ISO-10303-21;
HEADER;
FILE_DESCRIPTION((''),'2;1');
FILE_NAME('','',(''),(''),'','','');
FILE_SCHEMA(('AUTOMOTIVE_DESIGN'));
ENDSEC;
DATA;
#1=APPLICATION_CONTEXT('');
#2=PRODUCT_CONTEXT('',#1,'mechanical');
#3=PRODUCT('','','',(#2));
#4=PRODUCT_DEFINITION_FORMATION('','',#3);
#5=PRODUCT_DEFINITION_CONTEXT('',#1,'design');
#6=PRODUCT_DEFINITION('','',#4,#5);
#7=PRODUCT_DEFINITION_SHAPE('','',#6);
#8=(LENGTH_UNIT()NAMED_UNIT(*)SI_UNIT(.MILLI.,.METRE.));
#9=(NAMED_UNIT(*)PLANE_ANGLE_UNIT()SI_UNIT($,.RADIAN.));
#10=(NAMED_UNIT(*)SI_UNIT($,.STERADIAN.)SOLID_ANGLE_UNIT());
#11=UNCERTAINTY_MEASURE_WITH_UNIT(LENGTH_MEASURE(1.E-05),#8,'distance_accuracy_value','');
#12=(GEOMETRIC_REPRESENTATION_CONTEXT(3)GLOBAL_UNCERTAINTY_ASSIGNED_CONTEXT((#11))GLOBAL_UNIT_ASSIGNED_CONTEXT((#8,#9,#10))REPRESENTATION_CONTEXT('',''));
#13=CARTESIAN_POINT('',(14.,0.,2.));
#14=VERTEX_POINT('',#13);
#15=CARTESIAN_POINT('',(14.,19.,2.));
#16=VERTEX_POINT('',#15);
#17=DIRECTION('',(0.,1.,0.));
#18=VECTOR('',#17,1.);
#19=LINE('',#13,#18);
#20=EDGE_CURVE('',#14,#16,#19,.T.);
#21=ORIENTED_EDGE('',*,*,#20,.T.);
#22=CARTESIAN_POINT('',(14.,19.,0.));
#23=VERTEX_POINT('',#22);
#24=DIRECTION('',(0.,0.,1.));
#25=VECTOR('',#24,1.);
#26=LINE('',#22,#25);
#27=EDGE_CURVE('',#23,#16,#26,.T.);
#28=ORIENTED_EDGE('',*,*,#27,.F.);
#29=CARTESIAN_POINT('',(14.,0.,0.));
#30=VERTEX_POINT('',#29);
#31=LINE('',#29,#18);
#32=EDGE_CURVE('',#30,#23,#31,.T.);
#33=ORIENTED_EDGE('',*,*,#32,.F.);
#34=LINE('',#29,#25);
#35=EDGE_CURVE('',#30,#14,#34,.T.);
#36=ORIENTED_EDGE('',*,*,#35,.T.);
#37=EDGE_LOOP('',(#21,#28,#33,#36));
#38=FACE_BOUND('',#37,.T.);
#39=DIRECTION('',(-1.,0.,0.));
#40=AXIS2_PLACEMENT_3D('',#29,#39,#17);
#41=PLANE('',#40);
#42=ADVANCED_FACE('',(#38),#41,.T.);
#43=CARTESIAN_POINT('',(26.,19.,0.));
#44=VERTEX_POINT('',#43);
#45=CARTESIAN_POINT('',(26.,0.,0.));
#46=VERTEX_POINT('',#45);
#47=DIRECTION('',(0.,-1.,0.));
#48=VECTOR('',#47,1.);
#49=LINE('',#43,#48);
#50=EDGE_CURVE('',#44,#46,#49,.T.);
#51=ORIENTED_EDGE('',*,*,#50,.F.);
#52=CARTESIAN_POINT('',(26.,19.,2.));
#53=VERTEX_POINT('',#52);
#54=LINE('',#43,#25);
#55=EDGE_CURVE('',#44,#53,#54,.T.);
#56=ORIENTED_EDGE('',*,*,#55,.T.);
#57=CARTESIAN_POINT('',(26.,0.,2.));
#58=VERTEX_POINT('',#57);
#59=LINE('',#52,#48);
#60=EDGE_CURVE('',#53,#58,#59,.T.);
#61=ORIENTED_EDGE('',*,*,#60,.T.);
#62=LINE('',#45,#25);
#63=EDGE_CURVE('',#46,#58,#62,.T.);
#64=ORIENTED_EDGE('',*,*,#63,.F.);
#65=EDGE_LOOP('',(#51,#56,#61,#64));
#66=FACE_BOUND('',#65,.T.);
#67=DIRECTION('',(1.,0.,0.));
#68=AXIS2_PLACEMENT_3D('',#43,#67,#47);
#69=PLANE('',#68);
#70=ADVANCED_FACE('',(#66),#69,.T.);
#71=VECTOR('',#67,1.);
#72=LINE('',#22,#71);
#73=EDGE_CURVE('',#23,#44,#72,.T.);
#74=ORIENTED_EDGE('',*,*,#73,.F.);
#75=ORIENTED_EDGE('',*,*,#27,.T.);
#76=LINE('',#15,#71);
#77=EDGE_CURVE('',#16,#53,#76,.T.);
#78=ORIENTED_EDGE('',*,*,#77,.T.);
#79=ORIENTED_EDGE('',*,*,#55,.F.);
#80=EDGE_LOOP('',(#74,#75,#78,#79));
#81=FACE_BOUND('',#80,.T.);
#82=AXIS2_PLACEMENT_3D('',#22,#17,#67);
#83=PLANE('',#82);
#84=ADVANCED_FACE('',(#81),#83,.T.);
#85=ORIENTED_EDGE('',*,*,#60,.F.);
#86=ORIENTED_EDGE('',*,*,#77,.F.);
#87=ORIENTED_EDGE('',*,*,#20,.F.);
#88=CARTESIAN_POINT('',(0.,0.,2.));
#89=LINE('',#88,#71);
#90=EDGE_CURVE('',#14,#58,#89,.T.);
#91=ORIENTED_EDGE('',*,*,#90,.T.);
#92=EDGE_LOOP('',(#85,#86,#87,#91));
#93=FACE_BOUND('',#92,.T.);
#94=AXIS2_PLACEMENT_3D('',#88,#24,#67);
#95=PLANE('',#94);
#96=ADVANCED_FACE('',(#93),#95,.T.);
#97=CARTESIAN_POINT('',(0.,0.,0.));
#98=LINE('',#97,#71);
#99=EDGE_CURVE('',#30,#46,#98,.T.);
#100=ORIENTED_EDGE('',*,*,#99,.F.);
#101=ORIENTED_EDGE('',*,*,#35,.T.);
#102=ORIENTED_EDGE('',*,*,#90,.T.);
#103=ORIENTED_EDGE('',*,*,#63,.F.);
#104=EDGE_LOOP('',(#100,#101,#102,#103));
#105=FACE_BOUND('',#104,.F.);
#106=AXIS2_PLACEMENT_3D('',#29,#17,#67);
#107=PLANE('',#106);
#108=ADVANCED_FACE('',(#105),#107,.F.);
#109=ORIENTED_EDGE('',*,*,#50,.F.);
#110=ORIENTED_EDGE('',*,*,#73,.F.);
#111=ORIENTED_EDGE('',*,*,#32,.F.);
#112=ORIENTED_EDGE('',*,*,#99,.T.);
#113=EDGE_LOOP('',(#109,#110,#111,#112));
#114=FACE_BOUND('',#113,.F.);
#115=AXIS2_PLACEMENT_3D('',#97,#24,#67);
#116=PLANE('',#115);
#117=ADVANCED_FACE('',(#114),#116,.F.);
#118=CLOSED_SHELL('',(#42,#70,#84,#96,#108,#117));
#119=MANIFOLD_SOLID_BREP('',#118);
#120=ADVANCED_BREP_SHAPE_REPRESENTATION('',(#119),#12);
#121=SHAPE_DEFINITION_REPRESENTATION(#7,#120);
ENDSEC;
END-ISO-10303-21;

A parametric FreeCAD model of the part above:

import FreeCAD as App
import Part
import Sketcher
Q = App.Units.Quantity

doc = App.newDocument("Part")
body = doc.addObject("PartDesign::Body", "Body")

sketch1 = doc.addObject("Sketcher::SketchObject", "Sketch")
body.addObject(sketch1)
sketch1.AttachmentSupport = (doc.XY_Plane, [""])
sketch1.MapMode = "FlatFace"
sketch1.addGeometry([
    Part.LineSegment(App.Vector(14, 19, 0), App.Vector(14, 0, 0)),
    Part.LineSegment(App.Vector(14, 0, 0), App.Vector(26, 0, 0)),
    Part.LineSegment(App.Vector(26, 0, 0), App.Vector(26, 19, 0)),
    Part.LineSegment(App.Vector(26, 19, 0), App.Vector(14, 19, 0)),
], False)
sketch1.addConstraint([
    Sketcher.Constraint("Coincident", 0, 2, 1, 1),
    Sketcher.Constraint("Coincident", 1, 2, 2, 1),
    Sketcher.Constraint("Coincident", 2, 2, 3, 1),
    Sketcher.Constraint("Coincident", 3, 2, 0, 1),
    Sketcher.Constraint("Vertical", 0),
    Sketcher.Constraint("Horizontal", 1),
    Sketcher.Constraint("Vertical", 2),
    Sketcher.Constraint("Horizontal", 3),
    Sketcher.Constraint("PointOnObject", 0, 2, -1),
    Sketcher.Constraint("DistanceX", 1, 1, 1, 2, Q("12 mm")),
    Sketcher.Constraint("DistanceY", 0, 2, 0, 1, Q("19 mm")),
    Sketcher.Constraint("DistanceX", -1, 1, 0, 2, Q("14 mm")),
])
pad1 = doc.addObject("PartDesign::Pad", "Pad")
body.addObject(pad1)
pad1.Profile = sketch1
pad1.Length = 2

doc.recompute()
